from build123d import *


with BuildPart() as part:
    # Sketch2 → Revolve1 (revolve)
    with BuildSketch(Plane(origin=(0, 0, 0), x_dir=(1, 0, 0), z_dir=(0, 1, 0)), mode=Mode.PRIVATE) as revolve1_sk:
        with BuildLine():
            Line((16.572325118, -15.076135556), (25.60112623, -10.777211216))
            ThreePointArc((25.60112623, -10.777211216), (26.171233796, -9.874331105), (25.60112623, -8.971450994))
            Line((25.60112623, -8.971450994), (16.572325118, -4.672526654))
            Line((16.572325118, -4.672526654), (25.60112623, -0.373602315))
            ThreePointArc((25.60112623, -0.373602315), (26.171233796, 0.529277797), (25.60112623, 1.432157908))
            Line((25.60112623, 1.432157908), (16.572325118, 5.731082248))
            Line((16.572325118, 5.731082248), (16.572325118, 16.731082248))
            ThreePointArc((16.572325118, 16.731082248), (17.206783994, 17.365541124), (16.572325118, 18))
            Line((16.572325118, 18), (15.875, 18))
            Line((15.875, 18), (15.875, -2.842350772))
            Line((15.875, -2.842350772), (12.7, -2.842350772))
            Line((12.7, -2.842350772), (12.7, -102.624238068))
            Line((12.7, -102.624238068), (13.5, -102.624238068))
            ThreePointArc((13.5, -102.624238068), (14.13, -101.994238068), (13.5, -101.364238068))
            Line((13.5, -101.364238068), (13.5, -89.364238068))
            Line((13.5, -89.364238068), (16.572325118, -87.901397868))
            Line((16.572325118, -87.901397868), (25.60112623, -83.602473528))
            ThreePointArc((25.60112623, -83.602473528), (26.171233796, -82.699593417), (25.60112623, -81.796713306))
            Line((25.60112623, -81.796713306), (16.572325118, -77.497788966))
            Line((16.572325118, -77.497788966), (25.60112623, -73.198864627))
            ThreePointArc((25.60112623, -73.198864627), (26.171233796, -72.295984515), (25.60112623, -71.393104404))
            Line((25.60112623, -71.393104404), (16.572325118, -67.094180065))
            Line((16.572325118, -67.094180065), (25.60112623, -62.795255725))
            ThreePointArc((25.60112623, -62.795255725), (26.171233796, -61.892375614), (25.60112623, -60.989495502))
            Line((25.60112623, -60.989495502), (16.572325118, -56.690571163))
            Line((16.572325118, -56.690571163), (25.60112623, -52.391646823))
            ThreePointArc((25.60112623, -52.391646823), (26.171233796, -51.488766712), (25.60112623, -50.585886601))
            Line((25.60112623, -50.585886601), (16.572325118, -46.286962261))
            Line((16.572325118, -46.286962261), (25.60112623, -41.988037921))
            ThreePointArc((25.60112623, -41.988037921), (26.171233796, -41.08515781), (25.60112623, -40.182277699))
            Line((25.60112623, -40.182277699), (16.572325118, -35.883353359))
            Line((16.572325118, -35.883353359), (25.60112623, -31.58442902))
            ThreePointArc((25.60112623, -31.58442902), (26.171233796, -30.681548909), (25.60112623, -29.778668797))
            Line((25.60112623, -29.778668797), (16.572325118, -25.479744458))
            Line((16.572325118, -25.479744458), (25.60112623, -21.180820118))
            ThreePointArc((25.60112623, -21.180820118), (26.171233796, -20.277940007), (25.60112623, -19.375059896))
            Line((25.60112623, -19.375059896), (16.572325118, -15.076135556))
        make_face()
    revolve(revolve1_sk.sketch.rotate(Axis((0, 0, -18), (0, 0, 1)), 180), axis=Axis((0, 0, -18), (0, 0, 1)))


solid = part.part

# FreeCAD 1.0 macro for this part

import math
import FreeCAD as App
import Part
import Sketcher

V = App.Vector

doc = App.newDocument("Part")
params = doc.addObject("Spreadsheet::Sheet", "Params")
for row, (alias, value) in enumerate([
    ("sketch1_radius", "1 mm"),
    ("sketch1_height", "11 mm"),
    ("sketch1_height2", "12 mm"),
    ("sketch1_radius2", "0.63 mm"),
    ("sketch1_length", "10 mm"),
    ("revolution_angle", "360 deg"),
], start=1):
    params.set(f"A{row}", alias)
    params.set(f"B{row}", "=" + value)
    params.setAlias(f"B{row}", alias)

body = doc.addObject("PartDesign::Body", "Body")

# Sketch on XZ plane
sketch1 = body.newObject("Sketcher::SketchObject", "Sketch")
sketch1.AttachmentSupport = (doc.getObject("XZ_Plane"), [""])
sketch1.MapMode = "FlatFace"
sketch1.addGeometry([
    Part.LineSegment(V(16.572325, 15.076136, 0), V(25.601126, 10.777211, 0)),  # 0
    Part.ArcOfCircle(Part.Circle(V(25.171234, 9.874331, 0), V(0, 0, 1), 1), math.radians(-64.539266), math.radians(64.539266)),  # 1
    Part.LineSegment(V(25.601126, 8.971451, 0), V(16.572325, 4.672527, 0)),  # 2
    Part.LineSegment(V(16.572325, 4.672527, 0), V(25.601126, 0.373602, 0)),  # 3
    Part.ArcOfCircle(Part.Circle(V(25.171234, -0.529278, 0), V(0, 0, 1), 1), math.radians(-64.539266), math.radians(64.539266)),  # 4
    Part.LineSegment(V(25.601126, -1.432158, 0), V(16.572325, -5.731082, 0)),  # 5
    Part.LineSegment(V(16.572325, -5.731082, 0), V(16.572325, -16.731082, 0)),  # 6
    Part.ArcOfCircle(Part.Circle(V(16.572325, -17.365541, 0), V(0, 0, 1), 0.634459), math.radians(-90), math.radians(90)),  # 7
    Part.LineSegment(V(16.572325, -18, 0), V(15.875, -18, 0)),  # 8
    Part.LineSegment(V(15.875, -18, 0), V(15.875, 2.842351, 0)),  # 9
    Part.LineSegment(V(15.875, 2.842351, 0), V(12.7, 2.842351, 0)),  # 10
    Part.LineSegment(V(12.7, 2.842351, 0), V(12.7, 102.624238, 0)),  # 11
    Part.LineSegment(V(12.7, 102.624238, 0), V(13.5, 102.624238, 0)),  # 12
    Part.ArcOfCircle(Part.Circle(V(13.5, 101.994238, 0), V(0, 0, 1), 0.63), math.radians(-90), math.radians(90)),  # 13
    Part.LineSegment(V(13.5, 101.364238, 0), V(13.5, 89.364238, 0)),  # 14
    Part.LineSegment(V(13.5, 89.364238, 0), V(16.572325, 87.901398, 0)),  # 15
    Part.LineSegment(V(16.572325, 87.901398, 0), V(25.601126, 83.602474, 0)),  # 16
    Part.ArcOfCircle(Part.Circle(V(25.171234, 82.699593, 0), V(0, 0, 1), 1), math.radians(-64.539266), math.radians(64.539266)),  # 17
    Part.LineSegment(V(25.601126, 81.796713, 0), V(16.572325, 77.497789, 0)),  # 18
    Part.LineSegment(V(16.572325, 77.497789, 0), V(25.601126, 73.198865, 0)),  # 19
    Part.ArcOfCircle(Part.Circle(V(25.171234, 72.295985, 0), V(0, 0, 1), 1), math.radians(-64.539266), math.radians(64.539266)),  # 20
    Part.LineSegment(V(25.601126, 71.393104, 0), V(16.572325, 67.09418, 0)),  # 21
    Part.LineSegment(V(16.572325, 67.09418, 0), V(25.601126, 62.795256, 0)),  # 22
    Part.ArcOfCircle(Part.Circle(V(25.171234, 61.892376, 0), V(0, 0, 1), 1), math.radians(-64.539266), math.radians(64.539266)),  # 23
    Part.LineSegment(V(25.601126, 60.989496, 0), V(16.572325, 56.690571, 0)),  # 24
    Part.LineSegment(V(16.572325, 56.690571, 0), V(25.601126, 52.391647, 0)),  # 25
    Part.ArcOfCircle(Part.Circle(V(25.171234, 51.488767, 0), V(0, 0, 1), 1), math.radians(-64.539266), math.radians(64.539266)),  # 26
    Part.LineSegment(V(25.601126, 50.585887, 0), V(16.572325, 46.286962, 0)),  # 27
    Part.LineSegment(V(16.572325, 46.286962, 0), V(25.601126, 41.988038, 0)),  # 28
    Part.ArcOfCircle(Part.Circle(V(25.171234, 41.085158, 0), V(0, 0, 1), 1), math.radians(-64.539266), math.radians(64.539266)),  # 29
    Part.LineSegment(V(25.601126, 40.182278, 0), V(16.572325, 35.883353, 0)),  # 30
    Part.LineSegment(V(16.572325, 35.883353, 0), V(25.601126, 31.584429, 0)),  # 31
    Part.ArcOfCircle(Part.Circle(V(25.171234, 30.681549, 0), V(0, 0, 1), 1), math.radians(-64.539266), math.radians(64.539266)),  # 32
    Part.LineSegment(V(25.601126, 29.778669, 0), V(16.572325, 25.479744, 0)),  # 33
    Part.LineSegment(V(16.572325, 25.479744, 0), V(25.601126, 21.18082, 0)),  # 34
    Part.ArcOfCircle(Part.Circle(V(25.171234, 20.27794, 0), V(0, 0, 1), 1), math.radians(-64.539266), math.radians(64.539266)),  # 35
    Part.LineSegment(V(25.601126, 19.37506, 0), V(16.572325, 15.076136, 0)),  # 36
], False)
sketch1.addConstraint([
    Sketcher.Constraint("Tangent", 0, 2, 1, 2),
    Sketcher.Constraint("Tangent", 1, 1, 2, 1),
    Sketcher.Constraint("Coincident", 2, 2, 3, 1),
    Sketcher.Constraint("Tangent", 3, 2, 4, 2),
    Sketcher.Constraint("Tangent", 4, 1, 5, 1),
    Sketcher.Constraint("Coincident", 5, 2, 6, 1),
    Sketcher.Constraint("Coincident", 6, 2, 7, 2),
    Sketcher.Constraint("Tangent", 7, 1, 8, 1),
    Sketcher.Constraint("Coincident", 8, 2, 9, 1),
    Sketcher.Constraint("Coincident", 9, 2, 10, 1),
    Sketcher.Constraint("Coincident", 10, 2, 11, 1),
    Sketcher.Constraint("Coincident", 11, 2, 12, 1),
    Sketcher.Constraint("Tangent", 12, 2, 13, 2),
    Sketcher.Constraint("Coincident", 13, 1, 14, 1),
    Sketcher.Constraint("Coincident", 14, 2, 15, 1),
    Sketcher.Constraint("Coincident", 15, 2, 16, 1),
    Sketcher.Constraint("Tangent", 16, 2, 17, 2),
    Sketcher.Constraint("Tangent", 17, 1, 18, 1),
    Sketcher.Constraint("Coincident", 18, 2, 19, 1),
    Sketcher.Constraint("Tangent", 19, 2, 20, 2),
    Sketcher.Constraint("Tangent", 20, 1, 21, 1),
    Sketcher.Constraint("Coincident", 21, 2, 22, 1),
    Sketcher.Constraint("Tangent", 22, 2, 23, 2),
    Sketcher.Constraint("Tangent", 23, 1, 24, 1),
    Sketcher.Constraint("Coincident", 24, 2, 25, 1),
    Sketcher.Constraint("Tangent", 25, 2, 26, 2),
    Sketcher.Constraint("Tangent", 26, 1, 27, 1),
    Sketcher.Constraint("Coincident", 27, 2, 28, 1),
    Sketcher.Constraint("Tangent", 28, 2, 29, 2),
    Sketcher.Constraint("Tangent", 29, 1, 30, 1),
    Sketcher.Constraint("Coincident", 30, 2, 31, 1),
    Sketcher.Constraint("Tangent", 31, 2, 32, 2),
    Sketcher.Constraint("Tangent", 32, 1, 33, 1),
    Sketcher.Constraint("Coincident", 33, 2, 34, 1),
    Sketcher.Constraint("Tangent", 34, 2, 35, 2),
    Sketcher.Constraint("Tangent", 35, 1, 36, 1),
    Sketcher.Constraint("Coincident", 36, 2, 0, 1),
    Sketcher.Constraint("Vertical", 6),
    Sketcher.Constraint("Horizontal", 8),
    Sketcher.Constraint("Vertical", 9),
    Sketcher.Constraint("Horizontal", 10),
    Sketcher.Constraint("Vertical", 11),
    Sketcher.Constraint("Horizontal", 12),
    Sketcher.Constraint("Vertical", 14),
    Sketcher.Constraint("Equal", 1, 4),
    Sketcher.Constraint("Equal", 4, 17),
    Sketcher.Constraint("Equal", 17, 20),
    Sketcher.Constraint("Equal", 20, 23),
    Sketcher.Constraint("Equal", 23, 26),
    Sketcher.Constraint("Equal", 26, 29),
    Sketcher.Constraint("Equal", 29, 32),
    Sketcher.Constraint("Equal", 32, 35),
    Sketcher.Constraint("Parallel", 0, 3),
    Sketcher.Constraint("Parallel", 2, 5),
    Sketcher.Constraint("Parallel", 3, 15),
    Sketcher.Constraint("Parallel", 15, 16),
    Sketcher.Constraint("Parallel", 5, 18),
    Sketcher.Constraint("Parallel", 16, 19),
    Sketcher.Constraint("Parallel", 18, 21),
    Sketcher.Constraint("Parallel", 19, 22),
    Sketcher.Constraint("Parallel", 21, 24),
    Sketcher.Constraint("Parallel", 22, 25),
    Sketcher.Constraint("Parallel", 24, 27),
    Sketcher.Constraint("Parallel", 25, 28),
    Sketcher.Constraint("Parallel", 27, 30),
    Sketcher.Constraint("Parallel", 28, 31),
    Sketcher.Constraint("Parallel", 30, 33),
    Sketcher.Constraint("Parallel", 31, 34),
    Sketcher.Constraint("Parallel", 33, 36),
    Sketcher.Constraint("Vertical", 1, 3, 4, 3),
    Sketcher.Constraint("Vertical", 4, 3, 17, 3),
    Sketcher.Constraint("Vertical", 17, 3, 20, 3),
    Sketcher.Constraint("Vertical", 20, 3, 23, 3),
    Sketcher.Constraint("Vertical", 23, 3, 26, 3),
    Sketcher.Constraint("Vertical", 26, 3, 29, 3),
    Sketcher.Constraint("Vertical", 29, 3, 32, 3),
    Sketcher.Constraint("Vertical", 32, 3, 35, 3),
    Sketcher.Constraint("Vertical", 0, 2, 1, 1),
    Sketcher.Constraint("Vertical", 7, 3, 2, 2),
    Sketcher.Constraint("Vertical", 2, 2, 5, 2),
    Sketcher.Constraint("Vertical", 12, 2, 13, 1),
    Sketcher.Constraint("Vertical", 7, 1, 15, 2),
    Sketcher.Constraint("Vertical", 15, 2, 18, 2),
    Sketcher.Constraint("Vertical", 18, 2, 21, 2),
    Sketcher.Constraint("Vertical", 21, 2, 24, 2),
    Sketcher.Constraint("Vertical", 24, 2, 27, 2),
    Sketcher.Constraint("Vertical", 27, 2, 30, 2),
    Sketcher.Constraint("Vertical", 30, 2, 33, 2),
    Sketcher.Constraint("Vertical", 33, 2, 36, 2),
    Sketcher.Constraint("Radius", 1, 1.0),
    Sketcher.Constraint("DistanceY", 6, 2, 6, 1, 11.0),
    Sketcher.Constraint("DistanceY", 14, 2, 14, 1, 12.0),
    Sketcher.Constraint("Radius", 13, 0.63),
    Sketcher.Constraint("Distance", 0, 10.0),
    Sketcher.Constraint("DistanceX", 12, 1, 12, 2, 0.8),
    Sketcher.Constraint("DistanceY", 7, 1, -1, 1, 18.0),
    Sketcher.Constraint("DistanceX", -1, 1, 13, 3, 13.5),
    Sketcher.Constraint("DistanceX", 10, 2, 10, 1, 3.175),
    Sketcher.Constraint("Radius", 7, 0.634459),
    Sketcher.Constraint("DistanceY", 9, 1, 9, 2, 20.842351),
    Sketcher.Constraint("DistanceX", 7, 3, 0, 2, 9.028801),
    Sketcher.Constraint("DistanceX", 8, 2, 8, 1, 0.697325),
])
sketch1.setExpression("Constraints[89]", "Params.sketch1_radius")
sketch1.setExpression("Constraints[90]", "Params.sketch1_height")
sketch1.setExpression("Constraints[91]", "Params.sketch1_height2")
sketch1.setExpression("Constraints[92]", "Params.sketch1_radius2")
sketch1.setExpression("Constraints[93]", "Params.sketch1_length")
revolution = body.newObject("PartDesign::Revolution", "Revolution")
revolution.Profile = sketch1
revolution.ReferenceAxis = (sketch1, ["V_Axis"])
revolution.setExpression("Angle", "Params.revolution_angle")

doc.recompute()
